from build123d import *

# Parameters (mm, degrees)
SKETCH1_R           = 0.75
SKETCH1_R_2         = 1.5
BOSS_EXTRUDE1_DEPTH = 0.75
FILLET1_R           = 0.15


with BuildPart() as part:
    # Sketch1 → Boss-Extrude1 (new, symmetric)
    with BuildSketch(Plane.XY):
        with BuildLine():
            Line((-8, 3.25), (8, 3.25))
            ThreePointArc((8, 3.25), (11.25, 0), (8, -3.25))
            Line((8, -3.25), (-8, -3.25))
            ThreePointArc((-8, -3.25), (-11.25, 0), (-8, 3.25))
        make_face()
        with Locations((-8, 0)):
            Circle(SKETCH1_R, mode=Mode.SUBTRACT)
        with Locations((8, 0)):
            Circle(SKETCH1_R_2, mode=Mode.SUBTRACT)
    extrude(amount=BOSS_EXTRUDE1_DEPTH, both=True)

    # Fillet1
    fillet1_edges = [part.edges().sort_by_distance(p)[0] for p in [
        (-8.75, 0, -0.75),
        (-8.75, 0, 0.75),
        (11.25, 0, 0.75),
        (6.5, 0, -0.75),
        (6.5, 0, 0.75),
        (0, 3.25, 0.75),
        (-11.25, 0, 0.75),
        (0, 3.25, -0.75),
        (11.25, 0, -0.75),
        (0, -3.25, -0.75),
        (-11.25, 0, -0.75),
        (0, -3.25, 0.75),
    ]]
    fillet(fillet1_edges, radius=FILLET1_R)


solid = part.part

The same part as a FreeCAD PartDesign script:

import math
import FreeCAD as App
import Part
import Sketcher
from FreeCAD import Vector
Q = App.Units.Quantity


def edges_at(feature, points):
    """Names of the edges that pass closest to the given points."""
    edges = feature.Shape.Edges
    near = lambda p: min(range(len(edges)), key=lambda i: edges[i].distToShape(Part.Vertex(*p))[0])
    return sorted({f"Edge{near(p) + 1}" for p in points})

doc = App.newDocument("Part")
params = doc.addObject("Spreadsheet::Sheet", "Params")
for row, (alias, value) in enumerate([
    ("sketch1_diameter", "3 mm"),
    ("sketch1_diameter2", "1.5 mm"),
    ("sketch1_width", "16 mm"),
    ("sketch1_radius", "3.25 mm"),
    ("pad1_length", "1.5 mm"),
    ("fillet_radius", "0.15 mm"),
], start=1):
    params.set(f"A{row}", alias)
    params.set(f"B{row}", "=" + value)
    params.setAlias(f"B{row}", alias)

body = doc.addObject("PartDesign::Body", "Body")

# Sketch on XY plane
sketch1 = body.newObject("Sketcher::SketchObject", "Sketch")
sketch1.AttachmentSupport = (doc.getObject("XY_Plane"), [""])
sketch1.MapMode = "FlatFace"
sketch1.addGeometry([
    Part.LineSegment(Vector(8, 3.2, 0), Vector(-8, 3.2, 0)),  # 0
    Part.ArcOfCircle(Part.Circle(Vector(-8, 0, 0), Vector(0, 0, 1), 3.2), math.radians(90), math.radians(270)),  # 1
    Part.LineSegment(Vector(-8, -3.2, 0), Vector(8, -3.2, 0)),  # 2
    Part.ArcOfCircle(Part.Circle(Vector(8, 0, 0), Vector(0, 0, 1), 3.2), math.radians(-90), math.radians(90)),  # 3
    Part.Circle(Vector(8, 0, 0), Vector(0, 0, 1), 1.5),  # 4
    Part.Circle(Vector(-8, 0, 0), Vector(0, 0, 1), 0.8),  # 5
], False)
sketch1.addConstraint([
    Sketcher.Constraint("Tangent", 0, 2, 1, 1),
    Sketcher.Constraint("Tangent", 1, 2, 2, 1),
    Sketcher.Constraint("Tangent", 2, 2, 3, 1),
    Sketcher.Constraint("Tangent", 3, 2, 0, 1),
    Sketcher.Constraint("Horizontal", 0),
    Sketcher.Constraint("Horizontal", 2),
    Sketcher.Constraint("Coincident", 4, 3, 3, 3),
    Sketcher.Constraint("Coincident", 5, 3, 1, 3),
    Sketcher.Constraint("Symmetric", 1, 3, 3, 3, -1, 1),
    Sketcher.Constraint("Diameter", 4, Q("3 mm")),
    Sketcher.Constraint("Diameter", 5, Q("1.5 mm")),
    Sketcher.Constraint("DistanceX", 0, 2, 0, 1, Q("16 mm")),
    Sketcher.Constraint("Radius", 1, Q("3.25 mm")),
])
sketch1.setExpression("Constraints[9]", "Params.sketch1_diameter")
sketch1.setExpression("Constraints[10]", "Params.sketch1_diameter2")
sketch1.setExpression("Constraints[11]", "Params.sketch1_width")
sketch1.setExpression("Constraints[12]", "Params.sketch1_radius")
pad1 = body.newObject("PartDesign::Pad", "Pad")
pad1.Profile = sketch1
pad1.setExpression("Length", "Params.pad1_length")
pad1.Midplane = True
doc.recompute()

fillet = body.newObject("PartDesign::Fillet", "Fillet")
fillet.Base = (pad1, edges_at(pad1, [
    (-8.75, 0, -0.75),
    (-8.75, 0, 0.75),
    (11.25, 0, 0.75),
    (6.5, 0, -0.75),
    (6.5, 0, 0.75),
    (0, 3.25, 0.75),
    (-11.25, 0, 0.75),
    (0, 3.25, -0.75),
    (11.25, 0, -0.75),
    (0, -3.25, -0.75),
    (-11.25, 0, -0.75),
    (0, -3.25, 0.75),
]))
fillet.setExpression("Radius", "Params.fillet_radius")

doc.recompute()
